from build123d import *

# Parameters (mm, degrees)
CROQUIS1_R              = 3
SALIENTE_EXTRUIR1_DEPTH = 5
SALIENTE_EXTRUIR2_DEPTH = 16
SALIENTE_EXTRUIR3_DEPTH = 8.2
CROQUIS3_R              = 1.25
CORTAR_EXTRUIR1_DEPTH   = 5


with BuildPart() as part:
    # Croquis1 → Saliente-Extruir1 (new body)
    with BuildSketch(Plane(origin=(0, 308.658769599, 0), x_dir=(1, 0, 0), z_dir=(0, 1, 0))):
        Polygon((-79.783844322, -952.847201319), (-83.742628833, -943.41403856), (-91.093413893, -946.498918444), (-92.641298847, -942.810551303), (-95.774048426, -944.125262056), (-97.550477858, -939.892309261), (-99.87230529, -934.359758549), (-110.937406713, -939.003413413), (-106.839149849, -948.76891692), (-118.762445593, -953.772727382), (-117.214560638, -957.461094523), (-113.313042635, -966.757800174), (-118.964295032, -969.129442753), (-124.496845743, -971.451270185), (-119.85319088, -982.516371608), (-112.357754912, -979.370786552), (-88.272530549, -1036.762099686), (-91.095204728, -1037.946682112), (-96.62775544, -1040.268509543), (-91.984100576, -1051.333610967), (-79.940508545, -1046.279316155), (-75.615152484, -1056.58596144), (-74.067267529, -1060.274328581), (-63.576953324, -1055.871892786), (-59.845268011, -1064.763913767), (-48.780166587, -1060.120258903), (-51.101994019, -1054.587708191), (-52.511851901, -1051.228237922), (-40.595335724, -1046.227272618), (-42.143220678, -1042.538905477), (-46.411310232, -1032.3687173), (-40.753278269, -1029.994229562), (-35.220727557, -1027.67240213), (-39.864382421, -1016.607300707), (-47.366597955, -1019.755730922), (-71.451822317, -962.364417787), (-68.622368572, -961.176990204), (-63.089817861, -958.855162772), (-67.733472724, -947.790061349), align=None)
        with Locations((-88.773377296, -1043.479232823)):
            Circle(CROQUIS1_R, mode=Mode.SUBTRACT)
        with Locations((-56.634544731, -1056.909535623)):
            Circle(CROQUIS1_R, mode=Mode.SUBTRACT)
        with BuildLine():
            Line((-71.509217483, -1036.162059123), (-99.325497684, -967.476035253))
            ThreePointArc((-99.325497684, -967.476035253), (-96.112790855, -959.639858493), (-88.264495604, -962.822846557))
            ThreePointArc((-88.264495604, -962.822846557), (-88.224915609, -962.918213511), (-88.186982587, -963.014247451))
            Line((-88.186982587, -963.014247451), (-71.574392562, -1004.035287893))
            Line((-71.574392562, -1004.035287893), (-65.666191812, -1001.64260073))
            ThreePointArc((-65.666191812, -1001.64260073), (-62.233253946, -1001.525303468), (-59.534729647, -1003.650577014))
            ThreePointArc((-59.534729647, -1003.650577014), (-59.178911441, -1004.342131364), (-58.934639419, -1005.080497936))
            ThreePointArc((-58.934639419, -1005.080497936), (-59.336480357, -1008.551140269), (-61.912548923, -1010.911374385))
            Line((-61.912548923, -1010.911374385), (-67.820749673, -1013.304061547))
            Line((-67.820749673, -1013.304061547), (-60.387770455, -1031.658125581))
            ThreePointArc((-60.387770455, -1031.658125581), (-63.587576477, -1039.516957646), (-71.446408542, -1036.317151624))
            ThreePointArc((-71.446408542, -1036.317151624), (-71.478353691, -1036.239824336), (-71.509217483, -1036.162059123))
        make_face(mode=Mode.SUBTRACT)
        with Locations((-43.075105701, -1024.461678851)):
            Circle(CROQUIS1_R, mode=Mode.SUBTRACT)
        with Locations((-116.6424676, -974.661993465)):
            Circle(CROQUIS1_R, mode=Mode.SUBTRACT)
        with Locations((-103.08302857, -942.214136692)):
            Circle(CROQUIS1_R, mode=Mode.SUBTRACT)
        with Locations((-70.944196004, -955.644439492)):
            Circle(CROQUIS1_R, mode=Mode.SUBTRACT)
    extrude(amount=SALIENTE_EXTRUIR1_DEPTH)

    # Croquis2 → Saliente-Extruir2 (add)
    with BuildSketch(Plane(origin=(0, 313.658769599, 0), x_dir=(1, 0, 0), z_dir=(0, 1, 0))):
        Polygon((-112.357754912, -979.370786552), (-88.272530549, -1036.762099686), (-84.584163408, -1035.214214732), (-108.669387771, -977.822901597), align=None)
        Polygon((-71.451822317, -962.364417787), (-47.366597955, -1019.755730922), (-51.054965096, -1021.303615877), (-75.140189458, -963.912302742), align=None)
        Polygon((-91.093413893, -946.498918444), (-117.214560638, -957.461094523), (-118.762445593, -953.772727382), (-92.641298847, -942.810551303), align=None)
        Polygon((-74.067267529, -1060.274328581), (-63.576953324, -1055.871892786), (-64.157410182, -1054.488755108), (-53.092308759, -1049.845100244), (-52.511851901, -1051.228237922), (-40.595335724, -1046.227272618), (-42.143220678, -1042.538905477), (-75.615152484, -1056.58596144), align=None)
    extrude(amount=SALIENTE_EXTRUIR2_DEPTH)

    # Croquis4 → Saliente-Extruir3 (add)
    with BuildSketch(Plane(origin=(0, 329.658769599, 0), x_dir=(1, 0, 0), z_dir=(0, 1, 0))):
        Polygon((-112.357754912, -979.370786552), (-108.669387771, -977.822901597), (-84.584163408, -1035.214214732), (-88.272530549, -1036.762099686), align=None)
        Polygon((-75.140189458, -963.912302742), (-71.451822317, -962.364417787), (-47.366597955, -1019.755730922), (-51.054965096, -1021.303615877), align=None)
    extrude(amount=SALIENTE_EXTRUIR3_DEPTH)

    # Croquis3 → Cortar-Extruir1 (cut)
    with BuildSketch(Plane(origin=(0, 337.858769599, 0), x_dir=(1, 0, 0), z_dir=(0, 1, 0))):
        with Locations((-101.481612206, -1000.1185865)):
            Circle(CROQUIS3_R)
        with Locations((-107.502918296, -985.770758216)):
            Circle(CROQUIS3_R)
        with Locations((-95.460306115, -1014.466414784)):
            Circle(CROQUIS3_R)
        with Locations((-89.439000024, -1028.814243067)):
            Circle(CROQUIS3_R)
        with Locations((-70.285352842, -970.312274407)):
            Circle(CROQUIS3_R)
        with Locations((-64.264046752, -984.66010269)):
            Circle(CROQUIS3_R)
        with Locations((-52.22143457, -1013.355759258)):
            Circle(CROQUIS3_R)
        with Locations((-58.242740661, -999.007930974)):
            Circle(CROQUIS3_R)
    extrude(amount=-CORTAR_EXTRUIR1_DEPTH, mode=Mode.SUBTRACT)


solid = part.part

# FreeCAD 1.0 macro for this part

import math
import FreeCAD as App
import Part
import Sketcher
from FreeCAD import Vector

doc = App.newDocument("Part")
params = doc.addObject("Spreadsheet::Sheet", "Params")
for row, (alias, value) in enumerate([
    ("sketch1_diameter", "6 mm"),
    ("sketch1_diameter2", "6 mm"),
    ("sketch1_diameter3", "6 mm"),
    ("sketch1_diameter4", "6 mm"),
    ("sketch1_diameter5", "6 mm"),
    ("pad1_length", "5 mm"),
    ("sketch2_length", "4 mm"),
    ("sketch2_length2", "12 mm"),
    ("sketch2_length3", "1.5 mm"),
    ("sketch2_length4", "36.3 mm"),
    ("pad2_length", "16 mm"),
    ("sketch3_length", "4 mm"),
    ("pad3_length", "8.2 mm"),
    ("sketch4_diameter", "2.5 mm"),
    ("pocket1_length", "5 mm"),
], start=1):
    params.set(f"A{row}", alias)
    params.set(f"B{row}", "=" + value)
    params.setAlias(f"B{row}", alias)

body = doc.addObject("PartDesign::Body", "Body")

# Sketch on XZ plane
sketch1 = doc.addObject("Sketcher::SketchObject", "Sketch")
body.addObject(sketch1)
sketch1.AttachmentSupport = (doc.XZ_Plane, [""])
sketch1.MapMode = "FlatFace"
sketch1.AttachmentOffset = App.Placement(Vector(0, 0, -308.65877), App.Rotation())
sketch1.addGeometry(Part.LineSegment(Vector(-79.783844, 952.847201, 0), Vector(-83.742629, 943.414039, 0)), False)
sketch1.addGeometry(Part.LineSegment(Vector(-83.742629, 943.414039, 0), Vector(-91.093414, 946.498918, 0)), False)
sketch1.addGeometry(Part.LineSegment(Vector(-91.093414, 946.498918, 0), Vector(-92.641299, 942.810551, 0)), False)
sketch1.addGeometry(Part.LineSegment(Vector(-92.641299, 942.810551, 0), Vector(-95.774048, 944.125262, 0)), False)
sketch1.addGeometry(Part.LineSegment(Vector(-95.774048, 944.125262, 0), Vector(-97.550478, 939.892309, 0)), False)
sketch1.addGeometry(Part.LineSegment(Vector(-97.550478, 939.892309, 0), Vector(-99.872305, 934.359759, 0)), False)
sketch1.addGeometry(Part.LineSegment(Vector(-99.872305, 934.359759, 0), Vector(-110.937407, 939.003413, 0)), False)
sketch1.addGeometry(Part.LineSegment(Vector(-110.937407, 939.003413, 0), Vector(-106.83915, 948.768917, 0)), False)
sketch1.addGeometry(Part.LineSegment(Vector(-106.83915, 948.768917, 0), Vector(-118.762446, 953.772727, 0)), False)
sketch1.addGeometry(Part.LineSegment(Vector(-118.762446, 953.772727, 0), Vector(-117.214561, 957.461095, 0)), False)
sketch1.addGeometry(Part.LineSegment(Vector(-117.214561, 957.461095, 0), Vector(-113.313043, 966.7578, 0)), False)
sketch1.addGeometry(Part.LineSegment(Vector(-113.313043, 966.7578, 0), Vector(-118.964295, 969.129443, 0)), False)
sketch1.addGeometry(Part.LineSegment(Vector(-118.964295, 969.129443, 0), Vector(-124.496846, 971.45127, 0)), False)
sketch1.addGeometry(Part.LineSegment(Vector(-124.496846, 971.45127, 0), Vector(-119.853191, 982.516372, 0)), False)
sketch1.addGeometry(Part.LineSegment(Vector(-119.853191, 982.516372, 0), Vector(-112.357755, 979.370787, 0)), False)
sketch1.addGeometry(Part.LineSegment(Vector(-112.357755, 979.370787, 0), Vector(-88.272531, 1036.7621, 0)), False)
sketch1.addGeometry(Part.LineSegment(Vector(-88.272531, 1036.7621, 0), Vector(-91.095205, 1037.946682, 0)), False)
sketch1.addGeometry(Part.LineSegment(Vector(-91.095205, 1037.946682, 0), Vector(-96.627755, 1040.26851, 0)), False)
sketch1.addGeometry(Part.LineSegment(Vector(-96.627755, 1040.26851, 0), Vector(-91.984101, 1051.333611, 0)), False)
sketch1.addGeometry(Part.LineSegment(Vector(-91.984101, 1051.333611, 0), Vector(-79.940509, 1046.279316, 0)), False)
sketch1.addGeometry(Part.LineSegment(Vector(-79.940509, 1046.279316, 0), Vector(-75.615152, 1056.585961, 0)), False)
sketch1.addGeometry(Part.LineSegment(Vector(-75.615152, 1056.585961, 0), Vector(-74.067268, 1060.274329, 0)), False)
sketch1.addGeometry(Part.LineSegment(Vector(-74.067268, 1060.274329, 0), Vector(-63.576953, 1055.871893, 0)), False)
sketch1.addGeometry(Part.LineSegment(Vector(-63.576953, 1055.871893, 0), Vector(-59.845268, 1064.763914, 0)), False)
sketch1.addGeometry(Part.LineSegment(Vector(-59.845268, 1064.763914, 0), Vector(-48.780167, 1060.120259, 0)), False)
sketch1.addGeometry(Part.LineSegment(Vector(-48.780167, 1060.120259, 0), Vector(-51.101994, 1054.587708, 0)), False)
sketch1.addGeometry(Part.LineSegment(Vector(-51.101994, 1054.587708, 0), Vector(-52.511852, 1051.228238, 0)), False)
sketch1.addGeometry(Part.LineSegment(Vector(-52.511852, 1051.228238, 0), Vector(-40.595336, 1046.227273, 0)), False)
sketch1.addGeometry(Part.LineSegment(Vector(-40.595336, 1046.227273, 0), Vector(-42.143221, 1042.538905, 0)), False)
sketch1.addGeometry(Part.LineSegment(Vector(-42.143221, 1042.538905, 0), Vector(-46.41131, 1032.368717, 0)), False)
sketch1.addGeometry(Part.LineSegment(Vector(-46.41131, 1032.368717, 0), Vector(-40.753278, 1029.99423, 0)), False)
sketch1.addGeometry(Part.LineSegment(Vector(-40.753278, 1029.99423, 0), Vector(-35.220728, 1027.672402, 0)), False)
sketch1.addGeometry(Part.LineSegment(Vector(-35.220728, 1027.672402, 0), Vector(-39.864382, 1016.607301, 0)), False)
sketch1.addGeometry(Part.LineSegment(Vector(-39.864382, 1016.607301, 0), Vector(-47.366598, 1019.755731, 0)), False)
sketch1.addGeometry(Part.LineSegment(Vector(-47.366598, 1019.755731, 0), Vector(-71.451822, 962.364418, 0)), False)
sketch1.addGeometry(Part.LineSegment(Vector(-71.451822, 962.364418, 0), Vector(-68.622369, 961.17699, 0)), False)
sketch1.addGeometry(Part.LineSegment(Vector(-68.622369, 961.17699, 0), Vector(-63.089818, 958.855163, 0)), False)
sketch1.addGeometry(Part.LineSegment(Vector(-63.089818, 958.855163, 0), Vector(-67.733473, 947.790061, 0)), False)
sketch1.addGeometry(Part.LineSegment(Vector(-67.733473, 947.790061, 0), Vector(-79.783844, 952.847201, 0)), False)
sketch1.addGeometry(Part.Circle(Vector(-88.773377, 1043.479233, 0), Vector(0, 0, 1), 3), False)
sketch1.addGeometry(Part.Circle(Vector(-56.634545, 1056.909536, 0), Vector(0, 0, 1), 3), False)
sketch1.addGeometry(Part.ArcOfCircle(Part.Circle(Vector(-65.917088, 1033.987638, 0), Vector(0, 0, 1), 6.000001), math.radians(157.154212), math.radians(158.752128)), False)
sketch1.addGeometry(Part.LineSegment(Vector(-71.509217, 1036.162059, 0), Vector(-99.325498, 967.476035, 0)), False)
sketch1.addGeometry(Part.ArcOfCircle(Part.Circle(Vector(-93.78618, 965.170399, 0), Vector(0, 0, 1), 6), math.radians(157.401406), math.radians(336.967153)), False)
sketch1.addGeometry(Part.ArcOfCircle(Part.Circle(Vector(-93.786182, 965.1704, 0), Vector(0, 0, 1), 6.000002), math.radians(-23.032847), math.radians(-21.060813)), False)
sketch1.addGeometry(Part.LineSegment(Vector(-88.186983, 963.014247, 0), Vector(-71.574393, 1004.035288, 0)), False)
sketch1.addGeometry(Part.LineSegment(Vector(-71.574393, 1004.035288, 0), Vector(-65.666192, 1001.642601, 0)), False)
sketch1.addGeometry(Part.ArcOfCircle(Part.Circle(Vector(-63.78937, 1006.276988, 0), Vector(0, 0, 1), 5), math.radians(-112.04683), math.radians(-31.687237)), False)
sketch1.addGeometry(Part.ArcOfCircle(Part.Circle(Vector(-63.78937, 1006.276988, 0), Vector(0, 0, 1), 5), math.radians(-31.687237), math.radians(-13.845107)), False)
sketch1.addGeometry(Part.ArcOfCircle(Part.Circle(Vector(-63.78937, 1006.276988, 0), Vector(0, 0, 1), 5), math.radians(-13.845107), math.radians(67.95317)), False)
sketch1.addGeometry(Part.LineSegment(Vector(-61.912549, 1010.911374, 0), Vector(-67.82075, 1013.304062, 0)), False)
sketch1.addGeometry(Part.LineSegment(Vector(-67.82075, 1013.304062, 0), Vector(-60.38777, 1031.658126, 0)), False)
sketch1.addGeometry(Part.ArcOfCircle(Part.Circle(Vector(-65.917089, 1033.987639, 0), Vector(0, 0, 1), 6), math.radians(-22.845788), math.radians(157.154212)), False)
sketch1.addGeometry(Part.Circle(Vector(-43.075106, 1024.461679, 0), Vector(0, 0, 1), 3), False)
sketch1.addGeometry(Part.Circle(Vector(-116.642468, 974.661993, 0), Vector(0, 0, 1), 3), False)
sketch1.addGeometry(Part.Circle(Vector(-103.083029, 942.214137, 0), Vector(0, 0, 1), 3), False)
sketch1.addGeometry(Part.Circle(Vector(-70.944196, 955.644439, 0), Vector(0, 0, 1), 3), False)
sketch1.addConstraint(Sketcher.Constraint("Coincident", 0, 2, 1, 1))
sketch1.addConstraint(Sketcher.Constraint("Coincident", 1, 2, 2, 1))
sketch1.addConstraint(Sketcher.Constraint("Coincident", 2, 2, 3, 1))
sketch1.addConstraint(Sketcher.Constraint("Coincident", 3, 2, 4, 1))
sketch1.addConstraint(Sketcher.Constraint("Coincident", 4, 2, 5, 1))
sketch1.addConstraint(Sketcher.Constraint("Coincident", 5, 2, 6, 1))
sketch1.addConstraint(Sketcher.Constraint("Coincident", 6, 2, 7, 1))
sketch1.addConstraint(Sketcher.Constraint("Coincident", 7, 2, 8, 1))
sketch1.addConstraint(Sketcher.Constraint("Coincident", 8, 2, 9, 1))
sketch1.addConstraint(Sketcher.Constraint("Coincident", 9, 2, 10, 1))
sketch1.addConstraint(Sketcher.Constraint("Coincident", 10, 2, 11, 1))
sketch1.addConstraint(Sketcher.Constraint("Coincident", 11, 2, 12, 1))
sketch1.addConstraint(Sketcher.Constraint("Coincident", 12, 2, 13, 1))
sketch1.addConstraint(Sketcher.Constraint("Coincident", 13, 2, 14, 1))
sketch1.addConstraint(Sketcher.Constraint("Coincident", 14, 2, 15, 1))
sketch1.addConstraint(Sketcher.Constraint("Coincident", 15, 2, 16, 1))
sketch1.addConstraint(Sketcher.Constraint("Coincident", 16, 2, 17, 1))
sketch1.addConstraint(Sketcher.Constraint("Coincident", 17, 2, 18, 1))
sketch1.addConstraint(Sketcher.Constraint("Coincident", 18, 2, 19, 1))
sketch1.addConstraint(Sketcher.Constraint("Coincident", 19, 2, 20, 1))
sketch1.addConstraint(Sketcher.Constraint("Coincident", 20, 2, 21, 1))
sketch1.addConstraint(Sketcher.Constraint("Coincident", 21, 2, 22, 1))
sketch1.addConstraint(Sketcher.Constraint("Coincident", 22, 2, 23, 1))
sketch1.addConstraint(Sketcher.Constraint("Coincident", 23, 2, 24, 1))
sketch1.addConstraint(Sketcher.Constraint("Coincident", 24, 2, 25, 1))
sketch1.addConstraint(Sketcher.Constraint("Coincident", 25, 2, 26, 1))
sketch1.addConstraint(Sketcher.Constraint("Coincident", 26, 2, 27, 1))
sketch1.addConstraint(Sketcher.Constraint("Coincident", 27, 2, 28, 1))
sketch1.addConstraint(Sketcher.Constraint("Coincident", 28, 2, 29, 1))
sketch1.addConstraint(Sketcher.Constraint("Coincident", 29, 2, 30, 1))
sketch1.addConstraint(Sketcher.Constraint("Coincident", 30, 2, 31, 1))
sketch1.addConstraint(Sketcher.Constraint("Coincident", 31, 2, 32, 1))
sketch1.addConstraint(Sketcher.Constraint("Coincident", 32, 2, 33, 1))
sketch1.addConstraint(Sketcher.Constraint("Coincident", 33, 2, 34, 1))
sketch1.addConstraint(Sketcher.Constraint("Coincident", 34, 2, 35, 1))
sketch1.addConstraint(Sketcher.Constraint("Coincident", 35, 2, 36, 1))
sketch1.addConstraint(Sketcher.Constraint("Coincident", 36, 2, 37, 1))
sketch1.addConstraint(Sketcher.Constraint("Coincident", 37, 2, 38, 1))
sketch1.addConstraint(Sketcher.Constraint("Coincident", 38, 2, 0, 1))
sketch1.addConstraint(Sketcher.Constraint("Coincident", 41, 2, 42, 1))
sketch1.addConstraint(Sketcher.Constraint("Coincident", 42, 2, 43, 1))
sketch1.addConstraint(Sketcher.Constraint("Coincident", 43, 2, 44, 1))
sketch1.addConstraint(Sketcher.Constraint("Coincident", 44, 2, 45, 1))
sketch1.addConstraint(Sketcher.Constraint("Coincident", 45, 2, 46, 1))
sketch1.addConstraint(Sketcher.Constraint("Coincident", 46, 2, 47, 1))
sketch1.addConstraint(Sketcher.Constraint("Coincident", 47, 2, 48, 1))
sketch1.addConstraint(Sketcher.Constraint("Coincident", 48, 2, 49, 1))
sketch1.addConstraint(Sketcher.Constraint("Coincident", 49, 2, 50, 1))
sketch1.addConstraint(Sketcher.Constraint("Coincident", 50, 2, 51, 1))
sketch1.addConstraint(Sketcher.Constraint("Coincident", 51, 2, 52, 1))
sketch1.addConstraint(Sketcher.Constraint("Coincident", 52, 2, 41, 1))
sketch1.addConstraint(Sketcher.Constraint("Coincident", 44, 3, 43, 3))
sketch1.addConstraint(Sketcher.Constraint("Coincident", 48, 3, 47, 3))
sketch1.addConstraint(Sketcher.Constraint("Coincident", 49, 3, 47, 3))
sketch1.addConstraint(Sketcher.Constraint("Coincident", 52, 3, 41, 3))
sketch1.addConstraint(Sketcher.Constraint("Diameter", 39, 6.0))
sketch1.addConstraint(Sketcher.Constraint("Diameter", 40, 6.0))
sketch1.addConstraint(Sketcher.Constraint("Diameter", 53, 6.0))
sketch1.addConstraint(Sketcher.Constraint("Diameter", 54, 6.0))
sketch1.addConstraint(Sketcher.Constraint("Diameter", 55, 6.0))
sketch1.addConstraint(Sketcher.Constraint("Diameter", 56, 6.0))
sketch1.addConstraint(Sketcher.Constraint("Radius", 41, 6.000001))
sketch1.addConstraint(Sketcher.Constraint("Radius", 43, 6.0))
sketch1.addConstraint(Sketcher.Constraint("Radius", 47, 5.0))
sketch1.addConstraint(Sketcher.Constraint("Distance", 2, 4.0))
sketch1.addConstraint(Sketcher.Constraint("Distance", 5, 6.0))
sketch1.addConstraint(Sketcher.Constraint("Distance", 6, 12.0))
sketch1.addConstraint(Sketcher.Constraint("Distance", 9, 4.0))
sketch1.addConstraint(Sketcher.Constraint("Distance", 12, 6.0))
sketch1.addConstraint(Sketcher.Constraint("Distance", 13, 12.0))
sketch1.addConstraint(Sketcher.Constraint("Distance", 17, 6.0))
sketch1.addConstraint(Sketcher.Constraint("Distance", 18, 12.0))
sketch1.addConstraint(Sketcher.Constraint("Distance", 21, 4.0))
sketch1.addConstraint(Sketcher.Constraint("Distance", 24, 12.0))
sketch1.addConstraint(Sketcher.Constraint("Distance", 25, 6.0))
sketch1.addConstraint(Sketcher.Constraint("Distance", 28, 4.0))
sketch1.addConstraint(Sketcher.Constraint("Distance", 31, 6.0))
sketch1.addConstraint(Sketcher.Constraint("Distance", 32, 12.0))
sketch1.addConstraint(Sketcher.Constraint("Distance", 36, 6.0))
sketch1.addConstraint(Sketcher.Constraint("Distance", 37, 12.0))
sketch1.addConstraint(Sketcher.Constraint("Distance", 4, 4.590598))
sketch1.addConstraint(Sketcher.Constraint("Distance", 7, 10.590598))
sketch1.addConstraint(Sketcher.Constraint("DistanceY", -1, 1, 43, 3, 965.170399))
sketch1.addConstraint(Sketcher.Constraint("DistanceX", 2, 2, -1, 1, 92.641299))
sketch1.addConstraint(Sketcher.Constraint("DistanceY", -1, 1, 10, 2, 966.7578))
sketch1.addConstraint(Sketcher.Constraint("DistanceY", -1, 1, 15, 2, 1036.7621))
sketch1.addConstraint(Sketcher.Constraint("DistanceX", 18, 2, -1, 1, 91.984101))
sketch1.addConstraint(Sketcher.Constraint("DistanceY", -1, 1, 32, 2, 1016.607301))
sketch1.addConstraint(Sketcher.Constraint("DistanceY", -1, 1, 38, 2, 952.847201))
sketch1.addConstraint(Sketcher.Constraint("DistanceY", -1, 1, 46, 2, 1001.642601))
sketch1.addConstraint(Sketcher.Constraint("Distance", 1, 7.971858))
sketch1.addConstraint(Sketcher.Constraint("Distance", 10, 10.082191))
sketch1.addConstraint(Sketcher.Constraint("Distance", 11, 6.128731))
sketch1.addConstraint(Sketcher.Constraint("Distance", 14, 8.128731))
sketch1.addConstraint(Sketcher.Constraint("Distance", 20, 11.177461))
sketch1.addConstraint(Sketcher.Constraint("Distance", 22, 11.376649))
sketch1.addConstraint(Sketcher.Constraint("Distance", 27, 12.923351))
sketch1.addConstraint(Sketcher.Constraint("Distance", 42, 74.104759))
sketch1.addConstraint(Sketcher.Constraint("Distance", 51, 19.802041))
sketch1.addConstraint(Sketcher.Constraint("DistanceX", 41, 3, -1, 1, 65.917088))
sketch1.addConstraint(Sketcher.Constraint("DistanceY", -1, 1, 41, 3, 1033.987638))
sketch1.addConstraint(Sketcher.Constraint("DistanceX", 43, 3, -1, 1, 93.78618))
sketch1.addConstraint(Sketcher.Constraint("DistanceX", 47, 3, -1, 1, 63.78937))
sketch1.addConstraint(Sketcher.Constraint("DistanceY", -1, 1, 53, 3, 1024.461679))
sketch1.addConstraint(Sketcher.Constraint("DistanceX", 55, 3, -1, 1, 103.083029))
sketch1.addConstraint(Sketcher.Constraint("DistanceY", -1, 1, 56, 3, 955.644439))
sketch1.addConstraint(Sketcher.Constraint("DistanceX", 0, 2, -1, 1, 83.742629))
sketch1.addConstraint(Sketcher.Constraint("DistanceY", -1, 1, 0, 2, 943.414039))
sketch1.addConstraint(Sketcher.Constraint("DistanceY", -1, 1, 1, 2, 946.498918))
sketch1.addConstraint(Sketcher.Constraint("DistanceX", 3, 2, -1, 1, 95.774048))
sketch1.addConstraint(Sketcher.Constraint("DistanceY", -1, 1, 4, 2, 939.892309))
sketch1.addConstraint(Sketcher.Constraint("DistanceY", -1, 1, 5, 2, 934.359759))
sketch1.addConstraint(Sketcher.Constraint("DistanceX", 7, 2, -1, 1, 106.83915))
sketch1.addConstraint(Sketcher.Constraint("DistanceX", 9, 2, -1, 1, 117.214561))
sketch1.addConstraint(Sketcher.Constraint("DistanceY", -1, 1, 12, 2, 971.45127))
sketch1.addConstraint(Sketcher.Constraint("DistanceX", 13, 2, -1, 1, 119.853191))
sketch1.addConstraint(Sketcher.Constraint("DistanceY", -1, 1, 13, 2, 982.516372))
sketch1.addConstraint(Sketcher.Constraint("DistanceX", 15, 2, -1, 1, 88.272531))
sketch1.addConstraint(Sketcher.Constraint("DistanceY", -1, 1, 17, 2, 1040.26851))
sketch1.addConstraint(Sketcher.Constraint("DistanceY", -1, 1, 18, 2, 1051.333611))
sketch1.addConstraint(Sketcher.Constraint("DistanceX", 19, 2, -1, 1, 79.940509))
sketch1.addConstraint(Sketcher.Constraint("DistanceY", -1, 1, 20, 2, 1056.585961))
sketch1.addConstraint(Sketcher.Constraint("DistanceY", -1, 1, 21, 2, 1060.274329))
sketch1.addConstraint(Sketcher.Constraint("DistanceX", 23, 2, -1, 1, 59.845268))
sketch1.addConstraint(Sketcher.Constraint("DistanceY", -1, 1, 24, 2, 1060.120259))
sketch1.addConstraint(Sketcher.Constraint("DistanceY", -1, 1, 25, 2, 1054.587708))
sketch1.addConstraint(Sketcher.Constraint("DistanceX", 26, 2, -1, 1, 52.511852))
sketch1.addConstraint(Sketcher.Constraint("DistanceX", 28, 2, -1, 1, 42.143221))
sketch1.addConstraint(Sketcher.Constraint("DistanceX", 29, 2, -1, 1, 46.41131))
sketch1.addConstraint(Sketcher.Constraint("DistanceX", 30, 2, -1, 1, 40.753278))
sketch1.addConstraint(Sketcher.Constraint("DistanceY", -1, 1, 30, 2, 1029.99423))
sketch1.addConstraint(Sketcher.Constraint("DistanceY", -1, 1, 33, 2, 1019.755731))
sketch1.addConstraint(Sketcher.Constraint("DistanceX", 35, 2, -1, 1, 68.622369))
sketch1.addConstraint(Sketcher.Constraint("DistanceY", -1, 1, 35, 2, 961.17699))
sketch1.addConstraint(Sketcher.Constraint("DistanceY", -1, 1, 37, 2, 947.790061))
sketch1.addConstraint(Sketcher.Constraint("DistanceY", -1, 1, 41, 2, 1036.162059))
sketch1.addConstraint(Sketcher.Constraint("DistanceX", 46, 2, -1, 1, 65.666192))
sketch1.addConstraint(Sketcher.Constraint("DistanceX", 47, 2, -1, 1, 59.53473))
sketch1.addConstraint(Sketcher.Constraint("DistanceX", 48, 2, -1, 1, 58.934639))
sketch1.addConstraint(Sketcher.Constraint("DistanceX", 49, 2, -1, 1, 61.912549))
sketch1.addConstraint(Sketcher.Constraint("DistanceX", 50, 2, -1, 1, 67.82075))
sketch1.addConstraint(Sketcher.Constraint("DistanceY", -1, 1, 50, 2, 1013.304062))
sketch1.addConstraint(Sketcher.Constraint("DistanceX", 52, 2, -1, 1, 71.446409))
sketch1.addConstraint(Sketcher.Constraint("Distance", 0, 10.230178))
sketch1.addConstraint(Sketcher.Constraint("Distance", 3, 3.397438))
sketch1.addConstraint(Sketcher.Constraint("Distance", 8, 12.930704))
sketch1.addConstraint(Sketcher.Constraint("Distance", 15, 62.240347))
sketch1.addConstraint(Sketcher.Constraint("Distance", 19, 13.061164))
sketch1.addConstraint(Sketcher.Constraint("Distance", 23, 9.643314))
sketch1.addConstraint(Sketcher.Constraint("Distance", 26, 3.643314))
sketch1.addConstraint(Sketcher.Constraint("Distance", 29, 11.029475))
sketch1.addConstraint(Sketcher.Constraint("Distance", 30, 6.136083))
sketch1.addConstraint(Sketcher.Constraint("Distance", 33, 8.136083))
sketch1.addConstraint(Sketcher.Constraint("Distance", 34, 62.240347))
sketch1.addConstraint(Sketcher.Constraint("Distance", 35, 3.068516))
sketch1.addConstraint(Sketcher.Constraint("Distance", 38, 13.068516))
sketch1.addConstraint(Sketcher.Constraint("Distance", 45, 44.257247))
sketch1.addConstraint(Sketcher.Constraint("Distance", 46, 6.374307))
sketch1.addConstraint(Sketcher.Constraint("DistanceX", 39, 3, -1, 1, 88.773377))
sketch1.addConstraint(Sketcher.Constraint("DistanceY", -1, 1, 39, 3, 1043.479233))
sketch1.addConstraint(Sketcher.Constraint("DistanceX", 40, 3, -1, 1, 56.634545))
sketch1.addConstraint(Sketcher.Constraint("DistanceY", -1, 1, 40, 3, 1056.909536))
sketch1.addConstraint(Sketcher.Constraint("DistanceX", 53, 3, -1, 1, 43.075106))
sketch1.addConstraint(Sketcher.Constraint("DistanceX", 54, 3, -1, 1, 116.642468))
sketch1.addConstraint(Sketcher.Constraint("DistanceY", -1, 1, 54, 3, 974.661993))
sketch1.addConstraint(Sketcher.Constraint("DistanceY", -1, 1, 55, 3, 942.214137))
sketch1.addConstraint(Sketcher.Constraint("DistanceX", 56, 3, -1, 1, 70.944196))
sketch1.addConstraint(Sketcher.Constraint("DistanceX", 6, 2, -1, 1, 110.937407))
sketch1.addConstraint(Sketcher.Constraint("DistanceX", 11, 2, -1, 1, 118.964295))
sketch1.addConstraint(Sketcher.Constraint("DistanceX", 16, 2, -1, 1, 91.095205))
sketch1.addConstraint(Sketcher.Constraint("DistanceX", 22, 2, -1, 1, 63.576953))
sketch1.addConstraint(Sketcher.Constraint("DistanceX", 31, 2, -1, 1, 35.220728))
sketch1.addConstraint(Sketcher.Constraint("DistanceX", 43, 2, -1, 1, 88.264496))
sketch1.addConstraint(Sketcher.Constraint("DistanceX", 44, 2, -1, 1, 88.186983))
sketch1.setExpression("Constraints[55]", "Params.sketch1_diameter")
sketch1.setExpression("Constraints[56]", "Params.sketch1_diameter2")
sketch1.setExpression("Constraints[57]", "Params.sketch1_diameter3")
sketch1.setExpression("Constraints[58]", "Params.sketch1_diameter4")
sketch1.setExpression("Constraints[59]", "Params.sketch1_diameter5")
pad1 = doc.addObject("PartDesign::Pad", "Pad")
body.addObject(pad1)
pad1.Profile = sketch1
pad1.setExpression("Length", "Params.pad1_length")
pad1.Reversed = True

# Sketch on XZ plane
sketch2 = doc.addObject("Sketcher::SketchObject", "Sketch001")
body.addObject(sketch2)
sketch2.AttachmentSupport = (doc.XZ_Plane, [""])
sketch2.MapMode = "FlatFace"
sketch2.AttachmentOffset = App.Placement(Vector(0, 0, -313.65877), App.Rotation())
sketch2.addGeometry(Part.LineSegment(Vector(-112.4, 979.4, 0), Vector(-88.3, 1036.8, 0)), False)
sketch2.addGeometry(Part.LineSegment(Vector(-88.3, 1036.8, 0), Vector(-84.6, 1035.2, 0)), False)
sketch2.addGeometry(Part.LineSegment(Vector(-84.6, 1035.2, 0), Vector(-108.7, 977.8, 0)), False)
sketch2.addGeometry(Part.LineSegment(Vector(-108.7, 977.8, 0), Vector(-112.4, 979.4, 0)), False)
sketch2.addGeometry(Part.LineSegment(Vector(-47.4, 1019.8, 0), Vector(-71.5, 962.4, 0)), False)
sketch2.addGeometry(Part.LineSegment(Vector(-71.5, 962.4, 0), Vector(-75.1, 963.9, 0)), False)
sketch2.addGeometry(Part.LineSegment(Vector(-75.1, 963.9, 0), Vector(-51.1, 1021.3, 0)), False)
sketch2.addGeometry(Part.LineSegment(Vector(-51.1, 1021.3, 0), Vector(-47.4, 1019.8, 0)), False)
sketch2.addGeometry(Part.LineSegment(Vector(-117.2, 957.5, 0), Vector(-91.1, 946.5, 0)), False)
sketch2.addGeometry(Part.LineSegment(Vector(-91.1, 946.5, 0), Vector(-92.6, 942.8, 0)), False)
sketch2.addGeometry(Part.LineSegment(Vector(-92.6, 942.8, 0), Vector(-118.8, 953.8, 0)), False)
sketch2.addGeometry(Part.LineSegment(Vector(-118.8, 953.8, 0), Vector(-117.2, 957.5, 0)), False)
sketch2.addGeometry(Part.LineSegment(Vector(-74.1, 1060.3, 0), Vector(-63.6, 1055.9, 0)), False)
sketch2.addGeometry(Part.LineSegment(Vector(-63.6, 1055.9, 0), Vector(-64.2, 1054.5, 0)), False)
sketch2.addGeometry(Part.LineSegment(Vector(-64.2, 1054.5, 0), Vector(-53.1, 1049.8, 0)), False)
sketch2.addGeometry(Part.LineSegment(Vector(-53.1, 1049.8, 0), Vector(-52.5, 1051.2, 0)), False)
sketch2.addGeometry(Part.LineSegment(Vector(-52.5, 1051.2, 0), Vector(-40.6, 1046.2, 0)), False)
sketch2.addGeometry(Part.LineSegment(Vector(-40.6, 1046.2, 0), Vector(-42.1, 1042.5, 0)), False)
sketch2.addGeometry(Part.LineSegment(Vector(-42.1, 1042.5, 0), Vector(-75.6, 1056.6, 0)), False)
sketch2.addGeometry(Part.LineSegment(Vector(-75.6, 1056.6, 0), Vector(-74.1, 1060.3, 0)), False)
sketch2.addConstraint(Sketcher.Constraint("Coincident", 0, 2, 1, 1))
sketch2.addConstraint(Sketcher.Constraint("Coincident", 1, 2, 2, 1))
sketch2.addConstraint(Sketcher.Constraint("Coincident", 2, 2, 3, 1))
sketch2.addConstraint(Sketcher.Constraint("Coincident", 3, 2, 0, 1))
sketch2.addConstraint(Sketcher.Constraint("Coincident", 4, 2, 5, 1))
sketch2.addConstraint(Sketcher.Constraint("Coincident", 5, 2, 6, 1))
sketch2.addConstraint(Sketcher.Constraint("Coincident", 6, 2, 7, 1))
sketch2.addConstraint(Sketcher.Constraint("Coincident", 7, 2, 4, 1))
sketch2.addConstraint(Sketcher.Constraint("Coincident", 8, 2, 9, 1))
sketch2.addConstraint(Sketcher.Constraint("Coincident", 9, 2, 10, 1))
sketch2.addConstraint(Sketcher.Constraint("Coincident", 10, 2, 11, 1))
sketch2.addConstraint(Sketcher.Constraint("Coincident", 11, 2, 8, 1))
sketch2.addConstraint(Sketcher.Constraint("Coincident", 12, 2, 13, 1))
sketch2.addConstraint(Sketcher.Constraint("Coincident", 13, 2, 14, 1))
sketch2.addConstraint(Sketcher.Constraint("Coincident", 14, 2, 15, 1))
sketch2.addConstraint(Sketcher.Constraint("Coincident", 15, 2, 16, 1))
sketch2.addConstraint(Sketcher.Constraint("Coincident", 16, 2, 17, 1))
sketch2.addConstraint(Sketcher.Constraint("Coincident", 17, 2, 18, 1))
sketch2.addConstraint(Sketcher.Constraint("Coincident", 18, 2, 19, 1))
sketch2.addConstraint(Sketcher.Constraint("Coincident", 19, 2, 12, 1))
sketch2.addConstraint(Sketcher.Constraint("Perpendicular", 0, 1))
sketch2.addConstraint(Sketcher.Constraint("Perpendicular", 1, 2))
sketch2.addConstraint(Sketcher.Constraint("Perpendicular", 2, 3))
sketch2.addConstraint(Sketcher.Constraint("Perpendicular", 3, 4))
sketch2.addConstraint(Sketcher.Constraint("Perpendicular", 4, 5))
sketch2.addConstraint(Sketcher.Constraint("Perpendicular", 5, 6))
sketch2.addConstraint(Sketcher.Constraint("Perpendicular", 6, 7))
sketch2.addConstraint(Sketcher.Constraint("Parallel", 7, 8))
sketch2.addConstraint(Sketcher.Constraint("Perpendicular", 8, 9))
sketch2.addConstraint(Sketcher.Constraint("Perpendicular", 9, 10))
sketch2.addConstraint(Sketcher.Constraint("Perpendicular", 10, 11))
sketch2.addConstraint(Sketcher.Constraint("Perpendicular", 11, 12))
sketch2.addConstraint(Sketcher.Constraint("Perpendicular", 12, 13))
sketch2.addConstraint(Sketcher.Constraint("Perpendicular", 13, 14))
sketch2.addConstraint(Sketcher.Constraint("Perpendicular", 14, 15))
sketch2.addConstraint(Sketcher.Constraint("Perpendicular", 15, 16))
sketch2.addConstraint(Sketcher.Constraint("Perpendicular", 16, 17))
sketch2.addConstraint(Sketcher.Constraint("Perpendicular", 17, 18))
sketch2.addConstraint(Sketcher.Constraint("Perpendicular", 18, 19))
sketch2.addConstraint(Sketcher.Constraint("Equal", 2, 4))
sketch2.addConstraint(Sketcher.Constraint("Equal", 3, 5))
sketch2.addConstraint(Sketcher.Constraint("Equal", 7, 9))
sketch2.addConstraint(Sketcher.Constraint("Equal", 13, 15))
sketch2.addConstraint(Sketcher.Constraint("Equal", 11, 17))
sketch2.addConstraint(Sketcher.Constraint("Distance", 1, 4.0))
sketch2.addConstraint(Sketcher.Constraint("Distance", 14, 12.0))
sketch2.addConstraint(Sketcher.Constraint("Distance", 13, 1.5))
sketch2.addConstraint(Sketcher.Constraint("Distance", 18, 36.3))
sketch2.addConstraint(Sketcher.Constraint("DistanceY", -1, 1, 0, 2, 1036.7621))
sketch2.addConstraint(Sketcher.Constraint("DistanceY", -1, 1, 2, 2, 977.822902))
sketch2.addConstraint(Sketcher.Constraint("DistanceX", 9, 2, -1, 1, 92.641299))
sketch2.addConstraint(Sketcher.Constraint("DistanceY", -1, 1, 14, 2, 1049.8451))
sketch2.addConstraint(Sketcher.Constraint("DistanceX", 2, 2, 5, 2, 33.529198))
sketch2.addConstraint(Sketcher.Constraint("DistanceY", 5, 2, 2, 2, 13.910599))
sketch2.addConstraint(Sketcher.Constraint("DistanceY", 8, 2, 4, 2, 15.865499))
sketch2.addConstraint(Sketcher.Constraint("DistanceX", 13, 2, 14, 2, 11.065101))
sketch2.addConstraint(Sketcher.Constraint("DistanceX", 18, 2, 12, 2, 12.038199))
sketch2.addConstraint(Sketcher.Constraint("Distance", 8, 28.328142))
sketch2.addConstraint(Sketcher.Constraint("DistanceX", 0, 2, -1, 1, 88.272531))
sketch2.addConstraint(Sketcher.Constraint("DistanceX", 13, 2, -1, 1, 64.15741))
sketch2.setExpression("Constraints[44]", "Params.sketch2_length")
sketch2.setExpression("Constraints[45]", "Params.sketch2_length2")
sketch2.setExpression("Constraints[46]", "Params.sketch2_length3")
sketch2.setExpression("Constraints[47]", "Params.sketch2_length4")
pad2 = doc.addObject("PartDesign::Pad", "Pad001")
body.addObject(pad2)
pad2.Profile = sketch2
pad2.setExpression("Length", "Params.pad2_length")
pad2.Reversed = True

# Sketch on XZ plane
sketch3 = doc.addObject("Sketcher::SketchObject", "Sketch002")
body.addObject(sketch3)
sketch3.AttachmentSupport = (doc.XZ_Plane, [""])
sketch3.MapMode = "FlatFace"
sketch3.AttachmentOffset = App.Placement(Vector(0, 0, -329.65877), App.Rotation())
sketch3.addGeometry(Part.LineSegment(Vector(-108.7, 977.8, 0), Vector(-112.4, 979.4, 0)), False)
sketch3.addGeometry(Part.LineSegment(Vector(-112.4, 979.4, 0), Vector(-88.3, 1036.8, 0)), False)
sketch3.addGeometry(Part.LineSegment(Vector(-88.3, 1036.8, 0), Vector(-84.6, 1035.2, 0)), False)
sketch3.addGeometry(Part.LineSegment(Vector(-84.6, 1035.2, 0), Vector(-108.7, 977.8, 0)), False)
sketch3.addGeometry(Part.LineSegment(Vector(-71.5, 962.4, 0), Vector(-75.1, 963.9, 0)), False)
sketch3.addGeometry(Part.LineSegment(Vector(-75.1, 963.9, 0), Vector(-51.1, 1021.3, 0)), False)
sketch3.addGeometry(Part.LineSegment(Vector(-51.1, 1021.3, 0), Vector(-47.4, 1019.8, 0)), False)
sketch3.addGeometry(Part.LineSegment(Vector(-47.4, 1019.8, 0), Vector(-71.5, 962.4, 0)), False)
sketch3.addConstraint(Sketcher.Constraint("Coincident", 0, 2, 1, 1))
sketch3.addConstraint(Sketcher.Constraint("Coincident", 1, 2, 2, 1))
sketch3.addConstraint(Sketcher.Constraint("Coincident", 2, 2, 3, 1))
sketch3.addConstraint(Sketcher.Constraint("Coincident", 3, 2, 0, 1))
sketch3.addConstraint(Sketcher.Constraint("Coincident", 4, 2, 5, 1))
sketch3.addConstraint(Sketcher.Constraint("Coincident", 5, 2, 6, 1))
sketch3.addConstraint(Sketcher.Constraint("Coincident", 6, 2, 7, 1))
sketch3.addConstraint(Sketcher.Constraint("Coincident", 7, 2, 4, 1))
sketch3.addConstraint(Sketcher.Constraint("Perpendicular", 0, 1))
sketch3.addConstraint(Sketcher.Constraint("Perpendicular", 1, 2))
sketch3.addConstraint(Sketcher.Constraint("Perpendicular", 2, 3))
sketch3.addConstraint(Sketcher.Constraint("Perpendicular", 3, 4))
sketch3.addConstraint(Sketcher.Constraint("Perpendicular", 4, 5))
sketch3.addConstraint(Sketcher.Constraint("Perpendicular", 5, 6))
sketch3.addConstraint(Sketcher.Constraint("Perpendicular", 6, 7))
sketch3.addConstraint(Sketcher.Constraint("Equal", 2, 4))
sketch3.addConstraint(Sketcher.Constraint("Equal", 3, 5))
sketch3.addConstraint(Sketcher.Constraint("Distance", 0, 4.0))
sketch3.addConstraint(Sketcher.Constraint("DistanceY", -1, 1, 1, 2, 1036.7621))
sketch3.addConstraint(Sketcher.Constraint("DistanceY", -1, 1, 3, 2, 977.822902))
sketch3.addConstraint(Sketcher.Constraint("DistanceX", 3, 2, 4, 2, 33.529198))
sketch3.addConstraint(Sketcher.Constraint("DistanceY", 4, 2, 3, 2, 13.910599))
sketch3.addConstraint(Sketcher.Constraint("DistanceX", 1, 2, -1, 1, 88.272531))
sketch3.addConstraint(Sketcher.Constraint("DistanceX", 4, 2, -1, 1, 75.140189))
sketch3.setExpression("Constraints[17]", "Params.sketch3_length")
pad3 = doc.addObject("PartDesign::Pad", "Pad002")
body.addObject(pad3)
pad3.Profile = sketch3
pad3.setExpression("Length", "Params.pad3_length")
pad3.Reversed = True

# Sketch on XZ plane
sketch4 = doc.addObject("Sketcher::SketchObject", "Sketch003")
body.addObject(sketch4)
sketch4.AttachmentSupport = (doc.XZ_Plane, [""])
sketch4.MapMode = "FlatFace"
sketch4.AttachmentOffset = App.Placement(Vector(0, 0, -337.85877), App.Rotation())
sketch4.addGeometry(Part.Circle(Vector(-101.5, 1000.1, 0), Vector(0, 0, 1), 1.2), False)
sketch4.addGeometry(Part.Circle(Vector(-107.5, 985.8, 0), Vector(0, 0, 1), 1.2), False)
sketch4.addGeometry(Part.Circle(Vector(-95.5, 1014.5, 0), Vector(0, 0, 1), 1.2), False)
sketch4.addGeometry(Part.Circle(Vector(-89.4, 1028.8, 0), Vector(0, 0, 1), 1.2), False)
sketch4.addGeometry(Part.Circle(Vector(-70.3, 970.3, 0), Vector(0, 0, 1), 1.2), False)
sketch4.addGeometry(Part.Circle(Vector(-64.3, 984.7, 0), Vector(0, 0, 1), 1.2), False)
sketch4.addGeometry(Part.Circle(Vector(-52.2, 1013.4, 0), Vector(0, 0, 1), 1.2), False)
sketch4.addGeometry(Part.Circle(Vector(-58.2, 999, 0), Vector(0, 0, 1), 1.2), False)
sketch4.addConstraint(Sketcher.Constraint("Equal", 0, 1))
sketch4.addConstraint(Sketcher.Constraint("Equal", 1, 2))
sketch4.addConstraint(Sketcher.Constraint("Equal", 2, 3))
sketch4.addConstraint(Sketcher.Constraint("Equal", 3, 4))
sketch4.addConstraint(Sketcher.Constraint("Equal", 4, 5))
sketch4.addConstraint(Sketcher.Constraint("Equal", 5, 6))
sketch4.addConstraint(Sketcher.Constraint("Equal", 6, 7))
sketch4.addConstraint(Sketcher.Constraint("Diameter", 0, 2.5))
sketch4.addConstraint(Sketcher.Constraint("DistanceX", 3, 3, -1, 1, 89.439))
sketch4.addConstraint(Sketcher.Constraint("DistanceX", 1, 3, -1, 1, 107.502918))
sketch4.addConstraint(Sketcher.Constraint("DistanceY", -1, 1, 1, 3, 985.770758))
sketch4.addConstraint(Sketcher.Constraint("DistanceY", -1, 1, 6, 3, 1013.355759))
sketch4.addConstraint(Sketcher.Constraint("DistanceX", 7, 3, -1, 1, 58.242741))
sketch4.addConstraint(Sketcher.Constraint("DistanceY", -1, 1, 7, 3, 999.007931))
sketch4.addConstraint(Sketcher.Constraint("DistanceY", 1, 3, 0, 3, 14.347828))
sketch4.addConstraint(Sketcher.Constraint("DistanceY", 0, 3, 2, 3, 14.347828))
sketch4.addConstraint(Sketcher.Constraint("DistanceY", 2, 3, 3, 3, 14.347828))
sketch4.addConstraint(Sketcher.Constraint("DistanceX", 0, 3, 4, 3, 31.196259))
sketch4.addConstraint(Sketcher.Constraint("DistanceY", 4, 3, 2, 3, 44.15414))
sketch4.addConstraint(Sketcher.Constraint("DistanceY", 4, 3, 5, 3, 14.347828))
sketch4.addConstraint(Sketcher.Constraint("DistanceX", 2, 3, 5, 3, 31.196259))
sketch4.addConstraint(Sketcher.Constraint("DistanceX", 1, 3, 5, 3, 43.238872))
sketch4.addConstraint(Sketcher.Constraint("DistanceX", 2, 3, 6, 3, 43.238872))
sketch4.addConstraint(Sketcher.Constraint("DistanceX", 4, 3, 6, 3, 18.063918))
sketch4.setExpression("Constraints[7]", "Params.sketch4_diameter")
pocket1 = doc.addObject("PartDesign::Pocket", "Pocket")
body.addObject(pocket1)
pocket1.Profile = sketch4
pocket1.setExpression("Length", "Params.pocket1_length")
pocket1.Reversed = True

doc.recompute()
